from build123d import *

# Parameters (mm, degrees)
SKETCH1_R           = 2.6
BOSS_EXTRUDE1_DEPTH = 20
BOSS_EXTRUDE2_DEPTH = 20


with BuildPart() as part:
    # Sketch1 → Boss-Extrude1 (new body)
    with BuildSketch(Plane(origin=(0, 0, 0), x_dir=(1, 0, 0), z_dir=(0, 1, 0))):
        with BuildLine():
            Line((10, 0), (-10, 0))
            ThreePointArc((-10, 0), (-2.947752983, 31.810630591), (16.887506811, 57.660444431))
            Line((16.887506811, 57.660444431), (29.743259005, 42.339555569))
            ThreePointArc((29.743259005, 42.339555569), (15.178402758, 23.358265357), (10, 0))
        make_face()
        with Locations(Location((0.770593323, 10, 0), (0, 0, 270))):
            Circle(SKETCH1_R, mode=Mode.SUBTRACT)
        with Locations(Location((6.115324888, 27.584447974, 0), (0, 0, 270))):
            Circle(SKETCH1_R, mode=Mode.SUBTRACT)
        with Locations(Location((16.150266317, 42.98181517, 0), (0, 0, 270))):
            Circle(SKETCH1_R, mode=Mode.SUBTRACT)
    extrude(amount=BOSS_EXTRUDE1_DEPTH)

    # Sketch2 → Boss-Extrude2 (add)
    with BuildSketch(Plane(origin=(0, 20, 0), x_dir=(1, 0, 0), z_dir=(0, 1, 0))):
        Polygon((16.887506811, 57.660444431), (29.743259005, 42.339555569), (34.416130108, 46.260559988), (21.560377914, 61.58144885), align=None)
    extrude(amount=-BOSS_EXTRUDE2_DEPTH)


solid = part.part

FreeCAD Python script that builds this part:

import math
import FreeCAD as App
import Part
import Sketcher

V = App.Vector
Q = App.Units.Quantity


def add_polygon(sketch, points):
    """Adds a closed chain of lines whose ends are joined by coincident constraints."""
    first, n = sketch.GeometryCount, len(points)
    for a, b in zip(points, points[1:] + points[:1]):
        sketch.addGeometry(Part.LineSegment(App.Vector(*a, 0), App.Vector(*b, 0)), False)
    for i in range(n):
        sketch.addConstraint(Sketcher.Constraint("Coincident", first + i, 2, first + (i + 1) % n, 1))

doc = App.newDocument("Part")
body = doc.addObject("PartDesign::Body", "Body")

# Sketch on XZ plane
sketch1 = doc.addObject("Sketcher::SketchObject", "Sketch")
body.addObject(sketch1)
sketch1.AttachmentSupport = (doc.XZ_Plane, [""])
sketch1.MapMode = "FlatFace"
sketch1.addGeometry([
    Part.LineSegment(V(-10, 0, 0), V(10, 0, 0)),  # 0
    Part.ArcOfCircle(Part.Circle(V(65.270364, 0, 0), V(0, 0, 1), 55.270364), math.radians(180), math.radians(230)),  # 1
    Part.LineSegment(V(29.743259, -42.339556, 0), V(16.887507, -57.660444, 0)),  # 2
    Part.ArcOfCircle(Part.Circle(V(65.270364, 0, 0), V(0, 0, 1), 75.270364), math.radians(180), math.radians(230)),  # 3
    Part.Circle(V(0.770593, -10, 0), V(0, 0, 1), 2.6),  # 4
    Part.Circle(V(16.150266, -42.981815, 0), V(0, 0, 1), 2.6),  # 5
    Part.Circle(V(6.115325, -27.584448, 0), V(0, 0, 1), 2.6),  # 6
], False)
sketch1.addConstraint([
    Sketcher.Constraint("Coincident", 0, 2, 1, 1),
    Sketcher.Constraint("Coincident", 1, 2, 2, 1),
    Sketcher.Constraint("Coincident", 2, 2, 3, 2),
    Sketcher.Constraint("Coincident", 3, 1, 0, 1),
    Sketcher.Constraint("Horizontal", 0),
    Sketcher.Constraint("Coincident", 3, 3, 1, 3),
    Sketcher.Constraint("Equal", 4, 5),
    Sketcher.Constraint("Equal", 5, 6),
    Sketcher.Constraint("Symmetric", 0, 2, 3, 1, -1, 1),
    Sketcher.Constraint("PointOnObject", 1, 3, -1),
    Sketcher.Constraint("Diameter", 4, Q("5.2 mm")),
    Sketcher.Constraint("DistanceX", 0, 1, 0, 2, Q("20 mm")),
    Sketcher.Constraint("Angle", 2, Q("-130 deg")),
    Sketcher.Constraint("DistanceY", 4, 3, -1, 1, Q("10 mm")),
    Sketcher.Constraint("Radius", 1, Q("55.270364 mm")),
    Sketcher.Constraint("DistanceX", 5, 3, 1, 3, Q("49.120098 mm")),
    Sketcher.Constraint("DistanceX", -1, 1, 1, 2, Q("29.743259 mm")),
    Sketcher.Constraint("DistanceX", 4, 3, 1, 3, Q("64.499771 mm")),
    Sketcher.Constraint("DistanceX", 6, 3, 5, 3, Q("10.034941 mm")),
    Sketcher.Constraint("DistanceY", 5, 3, 1, 2, Q("0.64226 mm")),
    Sketcher.Constraint("DistanceY", 6, 3, -1, 1, Q("27.584448 mm")),
])
pad1 = doc.addObject("PartDesign::Pad", "Pad")
body.addObject(pad1)
pad1.Profile = sketch1
pad1.Length = 20
pad1.Reversed = True

# Sketch on XZ plane
sketch2 = doc.addObject("Sketcher::SketchObject", "Sketch001")
body.addObject(sketch2)
sketch2.AttachmentSupport = (doc.XZ_Plane, [""])
sketch2.MapMode = "FlatFace"
sketch2.AttachmentOffset = App.Placement(V(0, 0, -20), App.Rotation())
add_polygon(sketch2, [(16.887507, -57.660444), (29.743259, -42.339556), (34.41613, -46.26056), (21.560378, -61.581449)])  # lines 0-3
sketch2.addConstraint([
    Sketcher.Constraint("Perpendicular", 0, 1),
    Sketcher.Constraint("Perpendicular", 1, 2),
    Sketcher.Constraint("Perpendicular", 2, 3),
    Sketcher.Constraint("Angle", 0, Q("50 deg")),
    Sketcher.Constraint("Distance", 0, Q("20 mm")),
    Sketcher.Constraint("Distance", 1, Q("6.1 mm")),
    Sketcher.Constraint("DistanceX", -1, 1, 0, 2, Q("29.743259 mm")),
    Sketcher.Constraint("DistanceY", 1, 2, -1, 1, Q("46.26056 mm")),
])
pad2 = doc.addObject("PartDesign::Pad", "Pad001")
body.addObject(pad2)
pad2.Profile = sketch2
pad2.Length = 20

doc.recompute()
